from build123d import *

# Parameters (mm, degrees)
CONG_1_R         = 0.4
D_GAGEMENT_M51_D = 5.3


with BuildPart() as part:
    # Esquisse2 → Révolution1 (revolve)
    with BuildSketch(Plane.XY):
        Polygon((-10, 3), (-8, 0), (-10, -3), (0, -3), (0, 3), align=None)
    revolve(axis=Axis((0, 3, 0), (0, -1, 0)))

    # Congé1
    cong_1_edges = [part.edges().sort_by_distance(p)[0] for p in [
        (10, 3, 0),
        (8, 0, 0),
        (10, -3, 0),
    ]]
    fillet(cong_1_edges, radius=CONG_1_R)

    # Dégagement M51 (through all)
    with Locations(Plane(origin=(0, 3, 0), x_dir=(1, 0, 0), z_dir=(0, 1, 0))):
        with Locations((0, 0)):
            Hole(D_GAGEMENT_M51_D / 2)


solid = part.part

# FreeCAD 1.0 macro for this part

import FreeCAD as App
import Part
import Sketcher


def edges_at(feature, points):
    """Names of the edges that pass closest to the given points."""
    edges = feature.Shape.Edges
    near = lambda p: min(range(len(edges)), key=lambda i: edges[i].distToShape(Part.Vertex(*p))[0])
    return sorted({f"Edge{near(p) + 1}" for p in points})

doc = App.newDocument("Part")
params = doc.addObject("Spreadsheet::Sheet", "Params")
for row, (alias, value) in enumerate([
    ("sketch1_width", "10 mm"),
    ("sketch1_height", "6 mm"),
    ("revolution_angle", "360 deg"),
    ("fillet_radius", "0.4 mm"),
    ("sketch2_diameter", "5.3 mm"),
    ("hole_diameter", "5.3 mm"),
], start=1):
    params.set(f"A{row}", alias)
    params.set(f"B{row}", "=" + value)
    params.setAlias(f"B{row}", alias)

body = doc.addObject("PartDesign::Body", "Body")

sketch1 = body.newObject("Sketcher::SketchObject", "Sketch")
sketch1.AttachmentSupport = (doc.getObject("XY_Plane"), [""])
sketch1.MapMode = "FlatFace"
sketch1.addGeometry([
    Part.LineSegment(App.Vector(-10, 3, 0), App.Vector(-8, 0, 0)),
    Part.LineSegment(App.Vector(-8, 0, 0), App.Vector(-10, -3, 0)),
    Part.LineSegment(App.Vector(-10, -3, 0), App.Vector(0, -3, 0)),
    Part.LineSegment(App.Vector(0, -3, 0), App.Vector(0, 3, 0)),
    Part.LineSegment(App.Vector(0, 3, 0), App.Vector(-10, 3, 0)),
], False)
sketch1.addConstraint([
    Sketcher.Constraint("Coincident", 0, 2, 1, 1),
    Sketcher.Constraint("Coincident", 1, 2, 2, 1),
    Sketcher.Constraint("Coincident", 2, 2, 3, 1),
    Sketcher.Constraint("Coincident", 3, 2, 4, 1),
    Sketcher.Constraint("Coincident", 4, 2, 0, 1),
    Sketcher.Constraint("Horizontal", 2),
    Sketcher.Constraint("Vertical", 3),
    Sketcher.Constraint("Horizontal", 4),
    Sketcher.Constraint("Symmetric", 2, 2, 3, 2, -1, 1),
    Sketcher.Constraint("PointOnObject", 0, 2, -1),
    Sketcher.Constraint("Vertical", 1, 2, 4, 2),
    Sketcher.Constraint("DistanceX", 2, 1, 2, 2, 10.0),
    Sketcher.Constraint("DistanceY", 3, 1, 3, 2, 6.0),
    Sketcher.Constraint("DistanceX", 0, 2, -1, 1, 8.0),
])
sketch1.setExpression("Constraints[11]", "Params.sketch1_width")
sketch1.setExpression("Constraints[12]", "Params.sketch1_height")
revolution = body.newObject("PartDesign::Revolution", "Revolution")
revolution.Profile = sketch1
revolution.ReferenceAxis = (sketch1, ["V_Axis"])
revolution.setExpression("Angle", "Params.revolution_angle")
doc.recompute()

fillet = body.newObject("PartDesign::Fillet", "Fillet")
fillet.Base = (revolution, edges_at(revolution, [(10, 3, 0), (8, 0, 0), (10, -3, 0)]))
fillet.setExpression("Radius", "Params.fillet_radius")

sketch2 = body.newObject("Sketcher::SketchObject", "Sketch001")
sketch2.AttachmentSupport = (doc.getObject("XZ_Plane"), [""])
sketch2.MapMode = "FlatFace"
sketch2.AttachmentOffset = App.Placement(App.Vector(0, 0, -3), App.Rotation())
sketch2.addGeometry(Part.Circle(App.Vector(0, 0, 0), App.Vector(0, 0, 1), 2.6), False)
sketch2.addConstraint([
    Sketcher.Constraint("Coincident", 0, 3, -1, 1),
    Sketcher.Constraint("Diameter", 0, 5.3),
])
sketch2.setExpression("Constraints[1]", "Params.sketch2_diameter")
doc.recompute()
hole = body.newObject("PartDesign::Hole", "Hole")
hole.Profile = sketch2
hole.ThreadType = "None"
hole.setExpression("Diameter", "Params.hole_diameter")
hole.DepthType = "ThroughAll"
hole.Reversed = True

doc.recompute()
